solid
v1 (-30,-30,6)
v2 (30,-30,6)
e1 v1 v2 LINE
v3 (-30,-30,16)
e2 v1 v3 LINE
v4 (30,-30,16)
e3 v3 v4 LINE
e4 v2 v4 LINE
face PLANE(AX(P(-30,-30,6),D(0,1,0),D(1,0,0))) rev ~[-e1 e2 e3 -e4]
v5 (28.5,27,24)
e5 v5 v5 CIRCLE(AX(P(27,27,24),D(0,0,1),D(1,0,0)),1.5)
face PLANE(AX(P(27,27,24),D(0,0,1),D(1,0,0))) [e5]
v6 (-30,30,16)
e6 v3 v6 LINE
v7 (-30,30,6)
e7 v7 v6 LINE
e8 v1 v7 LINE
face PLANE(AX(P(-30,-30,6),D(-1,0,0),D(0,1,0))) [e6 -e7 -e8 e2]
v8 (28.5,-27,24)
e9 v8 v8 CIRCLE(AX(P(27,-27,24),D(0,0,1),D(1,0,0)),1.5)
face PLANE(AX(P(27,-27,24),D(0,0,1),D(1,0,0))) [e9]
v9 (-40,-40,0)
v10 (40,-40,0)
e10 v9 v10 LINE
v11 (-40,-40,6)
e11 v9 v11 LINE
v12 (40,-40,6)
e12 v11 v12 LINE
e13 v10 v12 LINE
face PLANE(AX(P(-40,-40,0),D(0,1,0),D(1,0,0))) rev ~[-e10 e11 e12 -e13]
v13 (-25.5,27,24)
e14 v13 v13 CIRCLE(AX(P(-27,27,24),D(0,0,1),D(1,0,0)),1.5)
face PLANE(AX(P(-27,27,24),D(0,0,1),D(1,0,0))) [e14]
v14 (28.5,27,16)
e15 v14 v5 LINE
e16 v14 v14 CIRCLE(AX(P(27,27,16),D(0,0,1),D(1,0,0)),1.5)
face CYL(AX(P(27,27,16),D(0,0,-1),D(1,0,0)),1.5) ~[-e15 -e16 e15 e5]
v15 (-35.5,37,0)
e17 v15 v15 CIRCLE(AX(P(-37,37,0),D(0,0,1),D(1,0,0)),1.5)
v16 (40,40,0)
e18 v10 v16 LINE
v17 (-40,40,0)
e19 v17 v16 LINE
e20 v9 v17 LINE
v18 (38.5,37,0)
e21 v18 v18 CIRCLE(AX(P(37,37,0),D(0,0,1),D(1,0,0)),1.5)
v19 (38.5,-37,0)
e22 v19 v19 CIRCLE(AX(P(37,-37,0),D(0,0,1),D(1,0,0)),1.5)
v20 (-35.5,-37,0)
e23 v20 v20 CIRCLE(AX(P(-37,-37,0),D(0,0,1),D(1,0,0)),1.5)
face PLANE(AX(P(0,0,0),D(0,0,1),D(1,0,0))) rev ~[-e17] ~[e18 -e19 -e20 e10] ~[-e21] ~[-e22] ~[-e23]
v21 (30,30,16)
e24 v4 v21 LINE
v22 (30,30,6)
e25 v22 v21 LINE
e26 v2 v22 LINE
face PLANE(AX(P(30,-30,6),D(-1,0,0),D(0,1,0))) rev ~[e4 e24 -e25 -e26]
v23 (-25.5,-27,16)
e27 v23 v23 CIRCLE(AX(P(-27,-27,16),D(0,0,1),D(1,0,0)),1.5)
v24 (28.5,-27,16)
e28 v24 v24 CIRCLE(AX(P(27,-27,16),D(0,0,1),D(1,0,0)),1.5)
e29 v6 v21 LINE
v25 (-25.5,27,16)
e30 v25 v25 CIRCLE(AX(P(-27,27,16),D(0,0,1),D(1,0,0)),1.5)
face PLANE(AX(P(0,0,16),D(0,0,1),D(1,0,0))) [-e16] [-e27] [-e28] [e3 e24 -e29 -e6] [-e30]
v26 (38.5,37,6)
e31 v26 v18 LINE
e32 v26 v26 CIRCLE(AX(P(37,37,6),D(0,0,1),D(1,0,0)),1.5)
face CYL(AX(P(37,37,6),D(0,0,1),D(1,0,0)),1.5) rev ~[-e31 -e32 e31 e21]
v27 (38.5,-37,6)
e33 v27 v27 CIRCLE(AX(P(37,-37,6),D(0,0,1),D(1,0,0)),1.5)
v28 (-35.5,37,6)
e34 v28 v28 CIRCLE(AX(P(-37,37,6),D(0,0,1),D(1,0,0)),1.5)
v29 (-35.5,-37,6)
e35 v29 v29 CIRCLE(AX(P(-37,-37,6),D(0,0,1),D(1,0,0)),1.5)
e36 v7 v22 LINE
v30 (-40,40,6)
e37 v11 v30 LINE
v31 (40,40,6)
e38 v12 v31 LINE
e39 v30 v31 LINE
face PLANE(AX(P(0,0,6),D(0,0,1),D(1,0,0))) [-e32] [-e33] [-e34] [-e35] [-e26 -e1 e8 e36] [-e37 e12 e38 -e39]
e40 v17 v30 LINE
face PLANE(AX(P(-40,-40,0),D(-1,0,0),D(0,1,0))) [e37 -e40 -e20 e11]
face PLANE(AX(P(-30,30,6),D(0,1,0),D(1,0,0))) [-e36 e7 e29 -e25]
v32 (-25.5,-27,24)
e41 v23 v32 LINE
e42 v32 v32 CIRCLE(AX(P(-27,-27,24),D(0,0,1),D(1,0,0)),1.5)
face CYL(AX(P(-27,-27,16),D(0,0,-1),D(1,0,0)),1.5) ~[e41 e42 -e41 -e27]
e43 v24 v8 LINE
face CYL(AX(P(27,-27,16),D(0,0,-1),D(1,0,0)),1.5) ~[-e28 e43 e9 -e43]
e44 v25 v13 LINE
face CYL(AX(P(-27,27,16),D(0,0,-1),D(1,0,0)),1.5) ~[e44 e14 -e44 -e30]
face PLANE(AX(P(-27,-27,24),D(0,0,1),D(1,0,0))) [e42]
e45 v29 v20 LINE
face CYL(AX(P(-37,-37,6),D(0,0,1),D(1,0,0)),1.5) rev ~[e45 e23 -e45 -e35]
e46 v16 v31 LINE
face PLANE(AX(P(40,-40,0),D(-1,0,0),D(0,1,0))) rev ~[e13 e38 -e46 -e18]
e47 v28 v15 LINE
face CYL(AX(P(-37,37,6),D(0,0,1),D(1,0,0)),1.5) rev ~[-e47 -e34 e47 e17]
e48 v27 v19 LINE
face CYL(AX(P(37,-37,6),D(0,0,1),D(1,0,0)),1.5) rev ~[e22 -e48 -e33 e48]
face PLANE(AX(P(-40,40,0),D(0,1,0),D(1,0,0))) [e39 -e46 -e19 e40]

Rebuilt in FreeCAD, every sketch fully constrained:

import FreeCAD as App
import Part
import Sketcher

V = App.Vector
Q = App.Units.Quantity

doc = App.newDocument("Part")
params = doc.addObject("Spreadsheet::Sheet", "Params")
for row, (alias, value) in enumerate([
    ("sketch1_width", "80 mm"),
    ("pad1_length", "6 mm"),
    ("sketch2_width", "60 mm"),
    ("pad2_length", "10 mm"),
    ("sketch3_diameter", "3 mm"),
    ("pad3_length", "8 mm"),
    ("sketch4_diameter", "3 mm"),
    ("pocket1_length", "6 mm"),
], start=1):
    params.set(f"A{row}", alias)
    params.set(f"B{row}", "=" + value)
    params.setAlias(f"B{row}", alias)

body = doc.addObject("PartDesign::Body", "Body")

sketch1 = body.newObject("Sketcher::SketchObject", "Sketch")
sketch1.AttachmentSupport = (doc.getObject("XY_Plane"), [""])
sketch1.MapMode = "FlatFace"
sketch1.addGeometry(Part.LineSegment(V(-40, 40, 0), V(-40, -40, 0)), False)
sketch1.addGeometry(Part.LineSegment(V(-40, -40, 0), V(40, -40, 0)), False)
sketch1.addGeometry(Part.LineSegment(V(40, -40, 0), V(40, 40, 0)), False)
sketch1.addGeometry(Part.LineSegment(V(40, 40, 0), V(-40, 40, 0)), False)
sketch1.addConstraint(Sketcher.Constraint("Coincident", 0, 2, 1, 1))
sketch1.addConstraint(Sketcher.Constraint("Coincident", 1, 2, 2, 1))
sketch1.addConstraint(Sketcher.Constraint("Coincident", 2, 2, 3, 1))
sketch1.addConstraint(Sketcher.Constraint("Coincident", 3, 2, 0, 1))
sketch1.addConstraint(Sketcher.Constraint("Vertical", 0))
sketch1.addConstraint(Sketcher.Constraint("Horizontal", 1))
sketch1.addConstraint(Sketcher.Constraint("Vertical", 2))
sketch1.addConstraint(Sketcher.Constraint("Horizontal", 3))
sketch1.addConstraint(Sketcher.Constraint("Symmetric", 0, 2, 2, 2, -1, 1))
sketch1.addConstraint(Sketcher.Constraint("Equal", 3, 0))
sketch1.addConstraint(Sketcher.Constraint("DistanceX", 1, 1, 1, 2, Q("80 mm")))
sketch1.setExpression("Constraints[10]", "Params.sketch1_width")
pad1 = body.newObject("PartDesign::Pad", "Pad")
pad1.Profile = sketch1
pad1.setExpression("Length", "Params.pad1_length")

sketch2 = body.newObject("Sketcher::SketchObject", "Sketch001")
sketch2.AttachmentSupport = (doc.getObject("XY_Plane"), [""])
sketch2.MapMode = "FlatFace"
sketch2.AttachmentOffset = App.Placement(V(0, 0, 6), App.Rotation())
sketch2.addGeometry(Part.LineSegment(V(-30, 30, 0), V(-30, -30, 0)), False)
sketch2.addGeometry(Part.LineSegment(V(-30, -30, 0), V(30, -30, 0)), False)
sketch2.addGeometry(Part.LineSegment(V(30, -30, 0), V(30, 30, 0)), False)
sketch2.addGeometry(Part.LineSegment(V(30, 30, 0), V(-30, 30, 0)), False)
sketch2.addConstraint(Sketcher.Constraint("Coincident", 0, 2, 1, 1))
sketch2.addConstraint(Sketcher.Constraint("Coincident", 1, 2, 2, 1))
sketch2.addConstraint(Sketcher.Constraint("Coincident", 2, 2, 3, 1))
sketch2.addConstraint(Sketcher.Constraint("Coincident", 3, 2, 0, 1))
sketch2.addConstraint(Sketcher.Constraint("Vertical", 0))
sketch2.addConstraint(Sketcher.Constraint("Horizontal", 1))
sketch2.addConstraint(Sketcher.Constraint("Vertical", 2))
sketch2.addConstraint(Sketcher.Constraint("Horizontal", 3))
sketch2.addConstraint(Sketcher.Constraint("Symmetric", 0, 2, 2, 2, -1, 1))
sketch2.addConstraint(Sketcher.Constraint("Equal", 3, 0))
sketch2.addConstraint(Sketcher.Constraint("DistanceX", 1, 1, 1, 2, Q("60 mm")))
sketch2.setExpression("Constraints[10]", "Params.sketch2_width")
pad2 = body.newObject("PartDesign::Pad", "Pad001")
pad2.Profile = sketch2
pad2.setExpression("Length", "Params.pad2_length")

sketch3 = body.newObject("Sketcher::SketchObject", "Sketch002")
sketch3.AttachmentSupport = (doc.getObject("XY_Plane"), [""])
sketch3.MapMode = "FlatFace"
sketch3.AttachmentOffset = App.Placement(V(0, 0, 16), App.Rotation())
sketch3.addGeometry(Part.Circle(V(-27, -27, 0), V(0, 0, 1), 1.5), False)
sketch3.addGeometry(Part.Circle(V(27, -27, 0), V(0, 0, 1), 1.5), False)
sketch3.addGeometry(Part.Circle(V(27, 27, 0), V(0, 0, 1), 1.5), False)
sketch3.addGeometry(Part.Circle(V(-27, 27, 0), V(0, 0, 1), 1.5), False)
sketch3.addConstraint(Sketcher.Constraint("Equal", 0, 1))
sketch3.addConstraint(Sketcher.Constraint("Equal", 1, 2))
sketch3.addConstraint(Sketcher.Constraint("Equal", 2, 3))
sketch3.addConstraint(Sketcher.Constraint("Symmetric", 0, 3, 2, 3, -1, 1))
sketch3.addConstraint(Sketcher.Constraint("Symmetric", 1, 3, 3, 3, -1, 1))
sketch3.addConstraint(Sketcher.Constraint("Symmetric", 0, 3, 1, 3, -2))
sketch3.addConstraint(Sketcher.Constraint("Diameter", 0, Q("3 mm")))
sketch3.addConstraint(Sketcher.Constraint("DistanceX", 0, 3, -1, 1, Q("27 mm")))
sketch3.addConstraint(Sketcher.Constraint("DistanceY", 0, 3, -1, 1, Q("27 mm")))
sketch3.setExpression("Constraints[6]", "Params.sketch3_diameter")
pad3 = body.newObject("PartDesign::Pad", "Pad002")
pad3.Profile = sketch3
pad3.setExpression("Length", "Params.pad3_length")

sketch4 = body.newObject("Sketcher::SketchObject", "Sketch003")
sketch4.AttachmentSupport = (doc.getObject("XY_Plane"), [""])
sketch4.MapMode = "FlatFace"
sketch4.AttachmentOffset = App.Placement(V(0, 0, 6), App.Rotation())
sketch4.addGeometry(Part.Circle(V(-37, 37, 0), V(0, 0, 1), 1.5), False)
sketch4.addGeometry(Part.Circle(V(37, 37, 0), V(0, 0, 1), 1.5), False)
sketch4.addGeometry(Part.Circle(V(-37, -37, 0), V(0, 0, 1), 1.5), False)
sketch4.addGeometry(Part.Circle(V(37, -37, 0), V(0, 0, 1), 1.5), False)
sketch4.addConstraint(Sketcher.Constraint("Equal", 0, 1))
sketch4.addConstraint(Sketcher.Constraint("Equal", 1, 2))
sketch4.addConstraint(Sketcher.Constraint("Equal", 2, 3))
sketch4.addConstraint(Sketcher.Constraint("Symmetric", 1, 3, 2, 3, -1, 1))
sketch4.addConstraint(Sketcher.Constraint("Symmetric", 0, 3, 3, 3, -1, 1))
sketch4.addConstraint(Sketcher.Constraint("Symmetric", 0, 3, 1, 3, -2))
sketch4.addConstraint(Sketcher.Constraint("Diameter", 0, Q("3 mm")))
sketch4.addConstraint(Sketcher.Constraint("DistanceX", 0, 3, -1, 1, Q("37 mm")))
sketch4.addConstraint(Sketcher.Constraint("DistanceY", -1, 1, 0, 3, Q("37 mm")))
sketch4.setExpression("Constraints[6]", "Params.sketch4_diameter")
pocket1 = body.newObject("PartDesign::Pocket", "Pocket")
pocket1.Profile = sketch4
pocket1.setExpression("Length", "Params.pocket1_length")

doc.recompute()
